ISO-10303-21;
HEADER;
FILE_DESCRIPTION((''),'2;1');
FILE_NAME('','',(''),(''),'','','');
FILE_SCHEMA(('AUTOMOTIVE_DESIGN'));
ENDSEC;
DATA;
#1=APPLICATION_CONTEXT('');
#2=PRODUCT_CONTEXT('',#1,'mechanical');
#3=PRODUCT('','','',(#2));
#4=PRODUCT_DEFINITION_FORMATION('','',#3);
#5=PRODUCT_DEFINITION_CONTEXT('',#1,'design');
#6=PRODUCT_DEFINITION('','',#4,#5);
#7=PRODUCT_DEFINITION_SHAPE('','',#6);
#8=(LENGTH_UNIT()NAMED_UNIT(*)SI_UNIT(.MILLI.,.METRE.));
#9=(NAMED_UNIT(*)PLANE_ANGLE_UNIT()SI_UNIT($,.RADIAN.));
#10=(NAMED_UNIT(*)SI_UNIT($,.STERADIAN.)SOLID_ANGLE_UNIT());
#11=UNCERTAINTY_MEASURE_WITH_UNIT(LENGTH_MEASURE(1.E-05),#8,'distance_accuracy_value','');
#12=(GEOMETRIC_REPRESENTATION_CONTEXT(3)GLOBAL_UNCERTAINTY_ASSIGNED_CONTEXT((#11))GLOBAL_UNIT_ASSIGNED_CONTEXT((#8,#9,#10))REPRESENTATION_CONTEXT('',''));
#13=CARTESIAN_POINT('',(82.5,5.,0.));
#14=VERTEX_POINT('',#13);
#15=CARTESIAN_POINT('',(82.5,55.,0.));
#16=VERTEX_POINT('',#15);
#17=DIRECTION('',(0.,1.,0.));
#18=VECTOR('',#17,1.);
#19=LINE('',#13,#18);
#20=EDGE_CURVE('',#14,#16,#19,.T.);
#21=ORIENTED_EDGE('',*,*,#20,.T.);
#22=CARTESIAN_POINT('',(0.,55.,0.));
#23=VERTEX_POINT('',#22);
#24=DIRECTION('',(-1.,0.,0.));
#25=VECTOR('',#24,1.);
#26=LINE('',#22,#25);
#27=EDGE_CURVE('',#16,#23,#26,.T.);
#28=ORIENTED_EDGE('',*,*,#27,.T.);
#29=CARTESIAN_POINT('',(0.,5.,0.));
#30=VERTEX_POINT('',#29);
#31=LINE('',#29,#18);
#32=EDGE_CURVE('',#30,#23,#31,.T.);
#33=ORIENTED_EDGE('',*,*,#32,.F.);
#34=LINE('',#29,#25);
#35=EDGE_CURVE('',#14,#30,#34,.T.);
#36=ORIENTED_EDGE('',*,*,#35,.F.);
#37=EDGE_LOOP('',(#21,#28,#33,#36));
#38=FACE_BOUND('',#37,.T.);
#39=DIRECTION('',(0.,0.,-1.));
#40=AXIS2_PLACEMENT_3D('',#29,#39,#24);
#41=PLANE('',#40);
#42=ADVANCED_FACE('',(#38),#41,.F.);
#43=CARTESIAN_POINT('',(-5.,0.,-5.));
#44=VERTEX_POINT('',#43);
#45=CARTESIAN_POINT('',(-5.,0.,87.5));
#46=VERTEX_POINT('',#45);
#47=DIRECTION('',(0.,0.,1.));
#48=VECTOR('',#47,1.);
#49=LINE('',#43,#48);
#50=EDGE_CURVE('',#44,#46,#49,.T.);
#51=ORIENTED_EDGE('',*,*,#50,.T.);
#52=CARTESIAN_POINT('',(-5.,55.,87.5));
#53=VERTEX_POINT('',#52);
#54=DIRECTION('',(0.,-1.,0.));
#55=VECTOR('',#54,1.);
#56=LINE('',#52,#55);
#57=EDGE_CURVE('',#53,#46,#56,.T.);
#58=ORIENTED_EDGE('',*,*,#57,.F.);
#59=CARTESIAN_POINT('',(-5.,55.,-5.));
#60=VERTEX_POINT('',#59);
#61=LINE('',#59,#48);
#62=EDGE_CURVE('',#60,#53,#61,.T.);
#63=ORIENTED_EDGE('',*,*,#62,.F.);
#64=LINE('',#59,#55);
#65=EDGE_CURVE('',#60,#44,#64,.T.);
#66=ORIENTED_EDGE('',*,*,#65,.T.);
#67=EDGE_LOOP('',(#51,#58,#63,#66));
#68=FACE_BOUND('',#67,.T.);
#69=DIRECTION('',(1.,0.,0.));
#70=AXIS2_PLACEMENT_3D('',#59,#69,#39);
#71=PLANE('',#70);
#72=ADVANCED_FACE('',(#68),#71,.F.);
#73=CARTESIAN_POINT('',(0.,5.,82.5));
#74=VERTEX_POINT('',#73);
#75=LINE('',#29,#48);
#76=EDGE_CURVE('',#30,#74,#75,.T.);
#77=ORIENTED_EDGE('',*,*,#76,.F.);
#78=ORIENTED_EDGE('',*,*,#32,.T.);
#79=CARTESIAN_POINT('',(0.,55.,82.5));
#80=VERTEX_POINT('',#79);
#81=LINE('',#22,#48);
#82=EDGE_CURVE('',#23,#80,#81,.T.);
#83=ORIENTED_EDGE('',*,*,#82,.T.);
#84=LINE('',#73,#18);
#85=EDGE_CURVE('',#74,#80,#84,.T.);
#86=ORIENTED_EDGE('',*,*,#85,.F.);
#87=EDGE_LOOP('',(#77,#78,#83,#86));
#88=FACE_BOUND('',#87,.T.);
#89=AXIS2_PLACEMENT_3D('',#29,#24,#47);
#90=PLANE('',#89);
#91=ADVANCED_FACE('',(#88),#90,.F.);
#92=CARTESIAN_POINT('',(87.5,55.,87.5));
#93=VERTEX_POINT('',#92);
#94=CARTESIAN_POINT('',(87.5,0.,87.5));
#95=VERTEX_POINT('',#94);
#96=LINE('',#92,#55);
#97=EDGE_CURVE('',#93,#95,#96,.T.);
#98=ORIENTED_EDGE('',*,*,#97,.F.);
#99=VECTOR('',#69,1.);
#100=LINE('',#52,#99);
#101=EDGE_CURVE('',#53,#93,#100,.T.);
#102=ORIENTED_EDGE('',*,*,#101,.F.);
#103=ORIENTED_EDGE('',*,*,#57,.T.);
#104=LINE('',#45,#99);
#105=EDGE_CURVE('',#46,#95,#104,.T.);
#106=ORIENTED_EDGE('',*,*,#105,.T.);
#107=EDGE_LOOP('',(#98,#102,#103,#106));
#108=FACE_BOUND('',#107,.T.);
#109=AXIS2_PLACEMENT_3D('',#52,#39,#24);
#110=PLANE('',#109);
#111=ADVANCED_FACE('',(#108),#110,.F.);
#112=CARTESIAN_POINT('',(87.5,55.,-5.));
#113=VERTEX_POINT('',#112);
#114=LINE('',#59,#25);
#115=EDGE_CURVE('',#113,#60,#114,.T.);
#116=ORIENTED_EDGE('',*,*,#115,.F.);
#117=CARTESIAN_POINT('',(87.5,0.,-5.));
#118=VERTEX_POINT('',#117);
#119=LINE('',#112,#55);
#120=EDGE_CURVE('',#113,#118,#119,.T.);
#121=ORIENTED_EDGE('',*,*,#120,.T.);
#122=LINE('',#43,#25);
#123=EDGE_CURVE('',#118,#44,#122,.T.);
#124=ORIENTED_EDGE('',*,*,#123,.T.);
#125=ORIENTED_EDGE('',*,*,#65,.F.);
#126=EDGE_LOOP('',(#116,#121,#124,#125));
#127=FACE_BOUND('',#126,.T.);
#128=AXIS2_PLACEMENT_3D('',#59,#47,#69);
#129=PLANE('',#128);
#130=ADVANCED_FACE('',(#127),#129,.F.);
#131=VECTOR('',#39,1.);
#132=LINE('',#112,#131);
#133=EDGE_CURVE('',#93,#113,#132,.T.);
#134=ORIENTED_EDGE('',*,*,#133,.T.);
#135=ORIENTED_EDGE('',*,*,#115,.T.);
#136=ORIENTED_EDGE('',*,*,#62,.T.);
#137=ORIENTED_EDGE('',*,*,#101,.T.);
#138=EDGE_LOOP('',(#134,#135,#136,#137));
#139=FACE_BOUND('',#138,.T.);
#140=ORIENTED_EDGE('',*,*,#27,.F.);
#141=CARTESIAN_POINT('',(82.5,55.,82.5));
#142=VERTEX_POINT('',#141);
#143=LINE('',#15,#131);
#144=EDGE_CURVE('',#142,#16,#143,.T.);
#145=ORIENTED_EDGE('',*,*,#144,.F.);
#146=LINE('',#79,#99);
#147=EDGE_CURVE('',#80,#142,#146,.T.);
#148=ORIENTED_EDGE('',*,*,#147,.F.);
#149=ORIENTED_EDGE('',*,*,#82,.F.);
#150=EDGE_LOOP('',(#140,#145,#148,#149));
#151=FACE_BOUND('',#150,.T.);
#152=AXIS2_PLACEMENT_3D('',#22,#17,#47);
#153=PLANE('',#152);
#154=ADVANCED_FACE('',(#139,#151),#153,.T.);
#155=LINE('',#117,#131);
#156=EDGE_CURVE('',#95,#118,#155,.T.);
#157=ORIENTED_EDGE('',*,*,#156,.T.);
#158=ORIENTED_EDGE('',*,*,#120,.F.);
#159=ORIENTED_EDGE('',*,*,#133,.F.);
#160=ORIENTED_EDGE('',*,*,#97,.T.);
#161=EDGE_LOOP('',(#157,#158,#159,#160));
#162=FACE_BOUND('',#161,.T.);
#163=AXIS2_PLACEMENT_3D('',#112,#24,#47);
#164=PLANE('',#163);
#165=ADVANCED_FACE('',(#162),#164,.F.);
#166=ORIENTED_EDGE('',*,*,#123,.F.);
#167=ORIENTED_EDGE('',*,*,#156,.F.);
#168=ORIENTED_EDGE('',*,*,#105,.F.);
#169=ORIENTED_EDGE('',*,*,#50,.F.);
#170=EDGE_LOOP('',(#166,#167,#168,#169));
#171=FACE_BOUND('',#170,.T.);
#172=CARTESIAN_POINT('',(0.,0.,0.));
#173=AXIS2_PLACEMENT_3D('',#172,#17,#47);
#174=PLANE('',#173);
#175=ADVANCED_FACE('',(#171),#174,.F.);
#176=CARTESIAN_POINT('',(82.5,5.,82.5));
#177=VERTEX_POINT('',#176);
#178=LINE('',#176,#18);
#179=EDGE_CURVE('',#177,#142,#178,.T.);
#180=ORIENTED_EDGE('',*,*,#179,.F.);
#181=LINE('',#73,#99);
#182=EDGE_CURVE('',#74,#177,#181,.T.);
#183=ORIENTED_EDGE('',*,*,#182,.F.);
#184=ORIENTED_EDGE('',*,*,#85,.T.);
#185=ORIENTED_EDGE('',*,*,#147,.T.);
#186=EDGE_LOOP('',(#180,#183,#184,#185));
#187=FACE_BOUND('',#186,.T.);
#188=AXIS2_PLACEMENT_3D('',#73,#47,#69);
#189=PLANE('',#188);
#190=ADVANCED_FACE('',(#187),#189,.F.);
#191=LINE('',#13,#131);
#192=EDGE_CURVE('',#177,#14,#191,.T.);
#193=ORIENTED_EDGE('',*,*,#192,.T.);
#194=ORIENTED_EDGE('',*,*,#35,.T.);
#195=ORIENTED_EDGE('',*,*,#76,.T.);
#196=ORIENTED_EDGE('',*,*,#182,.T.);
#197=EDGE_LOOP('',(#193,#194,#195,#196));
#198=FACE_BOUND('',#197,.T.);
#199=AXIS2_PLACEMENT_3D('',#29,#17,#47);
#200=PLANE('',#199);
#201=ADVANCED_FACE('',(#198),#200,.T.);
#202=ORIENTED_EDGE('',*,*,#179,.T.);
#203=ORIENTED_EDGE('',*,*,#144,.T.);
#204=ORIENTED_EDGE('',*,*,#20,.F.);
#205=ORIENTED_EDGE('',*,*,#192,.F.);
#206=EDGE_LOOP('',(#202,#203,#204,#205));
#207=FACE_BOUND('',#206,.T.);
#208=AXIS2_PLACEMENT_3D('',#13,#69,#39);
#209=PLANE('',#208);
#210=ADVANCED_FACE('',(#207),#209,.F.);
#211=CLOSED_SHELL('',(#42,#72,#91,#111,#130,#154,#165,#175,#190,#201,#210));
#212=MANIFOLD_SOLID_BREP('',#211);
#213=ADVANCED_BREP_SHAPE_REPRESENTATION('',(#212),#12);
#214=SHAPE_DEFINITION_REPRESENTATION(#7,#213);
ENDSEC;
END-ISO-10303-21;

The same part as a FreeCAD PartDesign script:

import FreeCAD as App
import Part
import Sketcher

V = App.Vector

doc = App.newDocument("Part")
body = doc.addObject("PartDesign::Body", "Body")

# Sketch on XZ plane
sketch1 = body.newObject("Sketcher::SketchObject", "Sketch")
sketch1.AttachmentSupport = (doc.getObject("XZ_Plane"), [""])
sketch1.MapMode = "FlatFace"
sketch1.addGeometry(Part.LineSegment(V(-5, -5, 0), V(-5, 87.5, 0)), False)
sketch1.addGeometry(Part.LineSegment(V(-5, 87.5, 0), V(87.5, 87.5, 0)), False)
sketch1.addGeometry(Part.LineSegment(V(87.5, 87.5, 0), V(87.5, -5, 0)), False)
sketch1.addGeometry(Part.LineSegment(V(87.5, -5, 0), V(-5, -5, 0)), False)
sketch1.addConstraint(Sketcher.Constraint("Coincident", 0, 2, 1, 1))
sketch1.addConstraint(Sketcher.Constraint("Coincident", 1, 2, 2, 1))
sketch1.addConstraint(Sketcher.Constraint("Coincident", 2, 2, 3, 1))
sketch1.addConstraint(Sketcher.Constraint("Coincident", 3, 2, 0, 1))
sketch1.addConstraint(Sketcher.Constraint("Vertical", 0))
sketch1.addConstraint(Sketcher.Constraint("Horizontal", 1))
sketch1.addConstraint(Sketcher.Constraint("Vertical", 2))
sketch1.addConstraint(Sketcher.Constraint("Horizontal", 3))
sketch1.addConstraint(Sketcher.Constraint("Equal", 3, 0))
sketch1.addConstraint(Sketcher.Constraint("DistanceX", 1, 1, 1, 2, 92.5))
sketch1.addConstraint(Sketcher.Constraint("DistanceX", 0, 2, -1, 1, 5.0))
sketch1.addConstraint(Sketcher.Constraint("DistanceY", 2, 2, -1, 1, 5.0))
pad1 = body.newObject("PartDesign::Pad", "Pad")
pad1.Profile = sketch1
pad1.Length = 55
pad1.Reversed = True

# Sketch on XZ plane
sketch2 = body.newObject("Sketcher::SketchObject", "Sketch001")
sketch2.AttachmentSupport = (doc.getObject("XZ_Plane"), [""])
sketch2.MapMode = "FlatFace"
sketch2.AttachmentOffset = App.Placement(V(0, 0, -55), App.Rotation())
sketch2.addGeometry(Part.LineSegment(V(0, 0, 0), V(0, 82.5, 0)), False)
sketch2.addGeometry(Part.LineSegment(V(0, 82.5, 0), V(82.5, 82.5, 0)), False)
sketch2.addGeometry(Part.LineSegment(V(82.5, 82.5, 0), V(82.5, 0, 0)), False)
sketch2.addGeometry(Part.LineSegment(V(82.5, 0, 0), V(0, 0, 0)), False)
sketch2.addConstraint(Sketcher.Constraint("Coincident", 0, 2, 1, 1))
sketch2.addConstraint(Sketcher.Constraint("Coincident", 1, 2, 2, 1))
sketch2.addConstraint(Sketcher.Constraint("Coincident", 2, 2, 3, 1))
sketch2.addConstraint(Sketcher.Constraint("Coincident", 3, 2, 0, 1))
sketch2.addConstraint(Sketcher.Constraint("Vertical", 0))
sketch2.addConstraint(Sketcher.Constraint("Horizontal", 1))
sketch2.addConstraint(Sketcher.Constraint("Vertical", 2))
sketch2.addConstraint(Sketcher.Constraint("Horizontal", 3))
sketch2.addConstraint(Sketcher.Constraint("Coincident", 3, 2, -1, 1))
sketch2.addConstraint(Sketcher.Constraint("Equal", 3, 0))
sketch2.addConstraint(Sketcher.Constraint("DistanceX", 1, 1, 1, 2, 82.5))
pocket1 = body.newObject("PartDesign::Pocket", "Pocket")
pocket1.Profile = sketch2
pocket1.Length = 50
pocket1.Reversed = True

doc.recompute()
